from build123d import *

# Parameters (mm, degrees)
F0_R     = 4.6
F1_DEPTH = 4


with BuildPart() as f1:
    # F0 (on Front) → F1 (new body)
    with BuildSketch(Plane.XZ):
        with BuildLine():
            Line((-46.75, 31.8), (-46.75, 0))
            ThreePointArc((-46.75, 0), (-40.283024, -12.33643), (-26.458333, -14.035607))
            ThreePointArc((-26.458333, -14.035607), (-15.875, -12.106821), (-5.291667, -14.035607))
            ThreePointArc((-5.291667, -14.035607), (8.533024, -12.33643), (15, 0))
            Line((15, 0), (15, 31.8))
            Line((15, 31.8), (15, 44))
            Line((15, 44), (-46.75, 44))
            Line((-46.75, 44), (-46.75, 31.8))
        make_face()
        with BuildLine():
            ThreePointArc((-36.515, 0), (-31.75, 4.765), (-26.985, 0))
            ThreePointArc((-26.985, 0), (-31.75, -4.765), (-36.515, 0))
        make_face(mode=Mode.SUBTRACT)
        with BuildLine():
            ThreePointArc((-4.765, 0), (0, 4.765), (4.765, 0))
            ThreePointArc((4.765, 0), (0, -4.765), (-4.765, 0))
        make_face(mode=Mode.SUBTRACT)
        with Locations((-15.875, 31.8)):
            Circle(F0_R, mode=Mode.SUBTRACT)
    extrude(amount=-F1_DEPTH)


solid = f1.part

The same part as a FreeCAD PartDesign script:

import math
import FreeCAD as App
import Part
import Sketcher

doc = App.newDocument("Part")
body = doc.addObject("PartDesign::Body", "Body")

# Sketch on XZ plane
sketch1 = body.newObject("Sketcher::SketchObject", "Sketch")
sketch1.AttachmentSupport = (doc.getObject("XZ_Plane"), [""])
sketch1.MapMode = "FlatFace"
sketch1.addGeometry([
    Part.ArcOfCircle(Part.Circle(App.Vector(-31.8, 0, 0), App.Vector(0, 0, 1), 15), math.radians(180), math.radians(291)),  # 0
    Part.ArcOfCircle(Part.Circle(App.Vector(-15.9, -42.1, 0), App.Vector(0, 0, 1), 30), math.radians(69), math.radians(111)),  # 1
    Part.ArcOfCircle(Part.Circle(App.Vector(0, 0, 0), App.Vector(0, 0, 1), 15), math.radians(-111), math.radians(0)),  # 2
    Part.LineSegment(App.Vector(15, 0, 0), App.Vector(15, 44, 0)),  # 3
    Part.LineSegment(App.Vector(15, 44, 0), App.Vector(-46.8, 44, 0)),  # 4
    Part.LineSegment(App.Vector(-46.8, 44, 0), App.Vector(-46.8, 0, 0)),  # 5
    Part.Circle(App.Vector(-31.8, 0, 0), App.Vector(0, 0, 1), 4.8),  # 6
    Part.Circle(App.Vector(0, 0, 0), App.Vector(0, 0, 1), 4.8),  # 7
    Part.Circle(App.Vector(-15.9, 31.8, 0), App.Vector(0, 0, 1), 4.6),  # 8
], False)
sketch1.addConstraint([
    Sketcher.Constraint("Tangent", 0, 2, 1, 2),
    Sketcher.Constraint("Tangent", 1, 1, 2, 1),
    Sketcher.Constraint("Tangent", 2, 2, 3, 1),
    Sketcher.Constraint("Coincident", 3, 2, 4, 1),
    Sketcher.Constraint("Coincident", 4, 2, 5, 1),
    Sketcher.Constraint("Tangent", 5, 2, 0, 1),
    Sketcher.Constraint("Vertical", 3),
    Sketcher.Constraint("Horizontal", 4),
    Sketcher.Constraint("Vertical", 5),
    Sketcher.Constraint("Coincident", 2, 3, -1, 1),
    Sketcher.Constraint("Coincident", 7, 3, -1, 1),
    Sketcher.Constraint("Coincident", 6, 3, 0, 3),
    Sketcher.Constraint("Equal", 0, 2),
    Sketcher.Constraint("Equal", 6, 7),
    Sketcher.Constraint("PointOnObject", 0, 3, -1),
    Sketcher.Constraint("Vertical", 1, 3, 8, 3),
    Sketcher.Constraint("Radius", 0, 15.0),
    Sketcher.Constraint("Radius", 1, 29.999998),
    Sketcher.Constraint("Diameter", 8, 9.2),
    Sketcher.Constraint("Diameter", 6, 9.53),
    Sketcher.Constraint("DistanceY", 3, 1, 3, 2, 44.0),
    Sketcher.Constraint("DistanceX", 4, 2, 4, 1, 61.75),
    Sketcher.Constraint("DistanceY", -1, 1, 8, 3, 31.8),
])
pad1 = body.newObject("PartDesign::Pad", "Pad")
pad1.Profile = sketch1
pad1.Length = 4
pad1.Reversed = True

doc.recompute()
